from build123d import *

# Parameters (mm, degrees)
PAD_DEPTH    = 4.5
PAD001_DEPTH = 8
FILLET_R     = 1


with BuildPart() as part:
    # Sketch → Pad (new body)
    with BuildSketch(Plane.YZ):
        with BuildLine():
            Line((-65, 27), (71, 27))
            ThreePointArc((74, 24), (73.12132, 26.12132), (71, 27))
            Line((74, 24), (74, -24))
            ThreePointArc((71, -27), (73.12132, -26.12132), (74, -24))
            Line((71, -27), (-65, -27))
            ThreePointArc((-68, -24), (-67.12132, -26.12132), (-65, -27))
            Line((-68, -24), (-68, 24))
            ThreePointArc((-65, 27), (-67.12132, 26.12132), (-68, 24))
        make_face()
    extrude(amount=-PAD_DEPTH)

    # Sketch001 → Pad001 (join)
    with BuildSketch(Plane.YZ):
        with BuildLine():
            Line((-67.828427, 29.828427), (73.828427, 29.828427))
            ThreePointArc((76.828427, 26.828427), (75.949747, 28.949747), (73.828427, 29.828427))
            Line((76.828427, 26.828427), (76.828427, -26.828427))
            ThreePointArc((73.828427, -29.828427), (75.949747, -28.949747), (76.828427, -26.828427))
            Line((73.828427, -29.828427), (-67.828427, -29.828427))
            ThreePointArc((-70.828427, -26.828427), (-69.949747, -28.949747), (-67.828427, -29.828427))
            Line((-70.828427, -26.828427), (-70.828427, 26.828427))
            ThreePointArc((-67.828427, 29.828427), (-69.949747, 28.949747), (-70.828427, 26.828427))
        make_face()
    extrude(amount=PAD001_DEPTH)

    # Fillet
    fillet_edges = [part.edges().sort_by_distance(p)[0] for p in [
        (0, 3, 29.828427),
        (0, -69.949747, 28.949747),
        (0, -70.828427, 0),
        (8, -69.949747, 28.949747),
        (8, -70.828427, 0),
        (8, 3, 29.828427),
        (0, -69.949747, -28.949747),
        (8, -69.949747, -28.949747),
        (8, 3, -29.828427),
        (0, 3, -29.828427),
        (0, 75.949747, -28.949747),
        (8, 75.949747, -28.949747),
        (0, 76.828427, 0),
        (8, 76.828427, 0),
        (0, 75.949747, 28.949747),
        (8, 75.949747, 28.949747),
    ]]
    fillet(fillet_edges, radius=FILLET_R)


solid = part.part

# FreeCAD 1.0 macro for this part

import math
import FreeCAD as App
import Part
import Sketcher
from FreeCAD import Vector


def edges_at(feature, points):
    """Names of the edges that pass closest to the given points."""
    edges = feature.Shape.Edges
    near = lambda p: min(range(len(edges)), key=lambda i: edges[i].distToShape(Part.Vertex(*p))[0])
    return sorted({f"Edge{near(p) + 1}" for p in points})

doc = App.newDocument("Part")
params = doc.addObject("Spreadsheet::Sheet", "Params")
for row, (alias, value) in enumerate([
    ("sketch1_radius", "3.000001 mm"),
    ("sketch1_width", "136 mm"),
    ("sketch1_height", "48 mm"),
    ("pad1_length", "4.5 mm"),
    ("sketch2_radius", "3.000001 mm"),
    ("pad2_length", "8 mm"),
    ("fillet_radius", "1 mm"),
], start=1):
    params.set(f"A{row}", alias)
    params.set(f"B{row}", "=" + value)
    params.setAlias(f"B{row}", alias)

body = doc.addObject("PartDesign::Body", "Body")

# Sketch on YZ plane
sketch1 = body.newObject("Sketcher::SketchObject", "Sketch")
sketch1.AttachmentSupport = (doc.getObject("YZ_Plane"), [""])
sketch1.MapMode = "FlatFace"
sketch1.addGeometry(Part.LineSegment(Vector(71, 27, 0), Vector(-65, 27, 0)), False)
sketch1.addGeometry(Part.ArcOfCircle(Part.Circle(Vector(-65, 24, 0), Vector(0, 0, 1), 3), math.radians(90), math.radians(180)), False)
sketch1.addGeometry(Part.LineSegment(Vector(-68, 24, 0), Vector(-68, -24, 0)), False)
sketch1.addGeometry(Part.ArcOfCircle(Part.Circle(Vector(-65, -24, 0), Vector(0, 0, 1), 3), math.radians(-180), math.radians(-90)), False)
sketch1.addGeometry(Part.LineSegment(Vector(-65, -27, 0), Vector(71, -27, 0)), False)
sketch1.addGeometry(Part.ArcOfCircle(Part.Circle(Vector(71, -24, 0), Vector(0, 0, 1), 3), math.radians(-90), math.radians(0)), False)
sketch1.addGeometry(Part.LineSegment(Vector(74, -24, 0), Vector(74, 24, 0)), False)
sketch1.addGeometry(Part.ArcOfCircle(Part.Circle(Vector(71, 24, 0), Vector(0, 0, 1), 3), math.radians(0), math.radians(90)), False)
sketch1.addConstraint(Sketcher.Constraint("Tangent", 0, 2, 1, 1))
sketch1.addConstraint(Sketcher.Constraint("Tangent", 1, 2, 2, 1))
sketch1.addConstraint(Sketcher.Constraint("Tangent", 2, 2, 3, 1))
sketch1.addConstraint(Sketcher.Constraint("Tangent", 3, 2, 4, 1))
sketch1.addConstraint(Sketcher.Constraint("Tangent", 4, 2, 5, 1))
sketch1.addConstraint(Sketcher.Constraint("Tangent", 5, 2, 6, 1))
sketch1.addConstraint(Sketcher.Constraint("Tangent", 6, 2, 7, 1))
sketch1.addConstraint(Sketcher.Constraint("Tangent", 7, 2, 0, 1))
sketch1.addConstraint(Sketcher.Constraint("Horizontal", 0))
sketch1.addConstraint(Sketcher.Constraint("Vertical", 2))
sketch1.addConstraint(Sketcher.Constraint("Horizontal", 4))
sketch1.addConstraint(Sketcher.Constraint("Vertical", 6))
sketch1.addConstraint(Sketcher.Constraint("Equal", 1, 3))
sketch1.addConstraint(Sketcher.Constraint("Equal", 3, 5))
sketch1.addConstraint(Sketcher.Constraint("Equal", 5, 7))
sketch1.addConstraint(Sketcher.Constraint("Radius", 1, 3.000001))
sketch1.addConstraint(Sketcher.Constraint("DistanceX", 0, 2, 0, 1, 136.0))
sketch1.addConstraint(Sketcher.Constraint("DistanceY", 2, 2, 2, 1, 48.0))
sketch1.addConstraint(Sketcher.Constraint("DistanceX", 1, 3, -1, 1, 64.999999))
sketch1.addConstraint(Sketcher.Constraint("DistanceY", -1, 1, 1, 3, 23.999999))
sketch1.setExpression("Constraints[15]", "Params.sketch1_radius")
sketch1.setExpression("Constraints[16]", "Params.sketch1_width")
sketch1.setExpression("Constraints[17]", "Params.sketch1_height")
pad1 = body.newObject("PartDesign::Pad", "Pad")
pad1.Profile = sketch1
pad1.setExpression("Length", "Params.pad1_length")
pad1.Reversed = True

# Sketch on YZ plane
sketch2 = body.newObject("Sketcher::SketchObject", "Sketch001")
sketch2.AttachmentSupport = (doc.getObject("YZ_Plane"), [""])
sketch2.MapMode = "FlatFace"
sketch2.addGeometry(Part.LineSegment(Vector(73.8, 29.8, 0), Vector(-67.8, 29.8, 0)), False)
sketch2.addGeometry(Part.ArcOfCircle(Part.Circle(Vector(-67.8, 26.8, 0), Vector(0, 0, 1), 3), math.radians(90), math.radians(180)), False)
sketch2.addGeometry(Part.LineSegment(Vector(-70.8, 26.8, 0), Vector(-70.8, -26.8, 0)), False)
sketch2.addGeometry(Part.ArcOfCircle(Part.Circle(Vector(-67.8, -26.8, 0), Vector(0, 0, 1), 3), math.radians(-180), math.radians(-90)), False)
sketch2.addGeometry(Part.LineSegment(Vector(-67.8, -29.8, 0), Vector(73.8, -29.8, 0)), False)
sketch2.addGeometry(Part.ArcOfCircle(Part.Circle(Vector(73.8, -26.8, 0), Vector(0, 0, 1), 3), math.radians(-90), math.radians(0)), False)
sketch2.addGeometry(Part.LineSegment(Vector(76.8, -26.8, 0), Vector(76.8, 26.8, 0)), False)
sketch2.addGeometry(Part.ArcOfCircle(Part.Circle(Vector(73.8, 26.8, 0), Vector(0, 0, 1), 3), math.radians(0), math.radians(90)), False)
sketch2.addConstraint(Sketcher.Constraint("Tangent", 0, 2, 1, 1))
sketch2.addConstraint(Sketcher.Constraint("Tangent", 1, 2, 2, 1))
sketch2.addConstraint(Sketcher.Constraint("Tangent", 2, 2, 3, 1))
sketch2.addConstraint(Sketcher.Constraint("Tangent", 3, 2, 4, 1))
sketch2.addConstraint(Sketcher.Constraint("Tangent", 4, 2, 5, 1))
sketch2.addConstraint(Sketcher.Constraint("Tangent", 5, 2, 6, 1))
sketch2.addConstraint(Sketcher.Constraint("Tangent", 6, 2, 7, 1))
sketch2.addConstraint(Sketcher.Constraint("Tangent", 7, 2, 0, 1))
sketch2.addConstraint(Sketcher.Constraint("Horizontal", 0))
sketch2.addConstraint(Sketcher.Constraint("Vertical", 2))
sketch2.addConstraint(Sketcher.Constraint("Horizontal", 4))
sketch2.addConstraint(Sketcher.Constraint("Vertical", 6))
sketch2.addConstraint(Sketcher.Constraint("Equal", 1, 3))
sketch2.addConstraint(Sketcher.Constraint("Equal", 3, 5))
sketch2.addConstraint(Sketcher.Constraint("Equal", 5, 7))
sketch2.addConstraint(Sketcher.Constraint("Radius", 1, 3.000001))
sketch2.addConstraint(Sketcher.Constraint("DistanceX", 0, 2, 0, 1, 141.656854))
sketch2.addConstraint(Sketcher.Constraint("DistanceY", 2, 2, 2, 1, 53.656854))
sketch2.addConstraint(Sketcher.Constraint("DistanceX", 1, 3, -1, 1, 67.828426))
sketch2.addConstraint(Sketcher.Constraint("DistanceY", -1, 1, 1, 3, 26.828426))
sketch2.setExpression("Constraints[15]", "Params.sketch2_radius")
pad2 = body.newObject("PartDesign::Pad", "Pad001")
pad2.Profile = sketch2
pad2.setExpression("Length", "Params.pad2_length")
doc.recompute()

fillet = body.newObject("PartDesign::Fillet", "Fillet")
fillet.Base = (pad2, edges_at(pad2, [
    (0, 3, 29.828),
    (0, -69.95, 28.95),
    (0, -70.828, 0),
    (8, -69.95, 28.95),
    (8, -70.828, 0),
    (8, 3, 29.828),
    (0, -69.95, -28.95),
    (8, -69.95, -28.95),
    (8, 3, -29.828),
    (0, 3, -29.828),
    (0, 75.95, -28.95),
    (8, 75.95, -28.95),
    (0, 76.828, 0),
    (8, 76.828, 0),
    (0, 75.95, 28.95),
    (8, 75.95, 28.95),
]))
fillet.setExpression("Radius", "Params.fillet_radius")

doc.recompute()
